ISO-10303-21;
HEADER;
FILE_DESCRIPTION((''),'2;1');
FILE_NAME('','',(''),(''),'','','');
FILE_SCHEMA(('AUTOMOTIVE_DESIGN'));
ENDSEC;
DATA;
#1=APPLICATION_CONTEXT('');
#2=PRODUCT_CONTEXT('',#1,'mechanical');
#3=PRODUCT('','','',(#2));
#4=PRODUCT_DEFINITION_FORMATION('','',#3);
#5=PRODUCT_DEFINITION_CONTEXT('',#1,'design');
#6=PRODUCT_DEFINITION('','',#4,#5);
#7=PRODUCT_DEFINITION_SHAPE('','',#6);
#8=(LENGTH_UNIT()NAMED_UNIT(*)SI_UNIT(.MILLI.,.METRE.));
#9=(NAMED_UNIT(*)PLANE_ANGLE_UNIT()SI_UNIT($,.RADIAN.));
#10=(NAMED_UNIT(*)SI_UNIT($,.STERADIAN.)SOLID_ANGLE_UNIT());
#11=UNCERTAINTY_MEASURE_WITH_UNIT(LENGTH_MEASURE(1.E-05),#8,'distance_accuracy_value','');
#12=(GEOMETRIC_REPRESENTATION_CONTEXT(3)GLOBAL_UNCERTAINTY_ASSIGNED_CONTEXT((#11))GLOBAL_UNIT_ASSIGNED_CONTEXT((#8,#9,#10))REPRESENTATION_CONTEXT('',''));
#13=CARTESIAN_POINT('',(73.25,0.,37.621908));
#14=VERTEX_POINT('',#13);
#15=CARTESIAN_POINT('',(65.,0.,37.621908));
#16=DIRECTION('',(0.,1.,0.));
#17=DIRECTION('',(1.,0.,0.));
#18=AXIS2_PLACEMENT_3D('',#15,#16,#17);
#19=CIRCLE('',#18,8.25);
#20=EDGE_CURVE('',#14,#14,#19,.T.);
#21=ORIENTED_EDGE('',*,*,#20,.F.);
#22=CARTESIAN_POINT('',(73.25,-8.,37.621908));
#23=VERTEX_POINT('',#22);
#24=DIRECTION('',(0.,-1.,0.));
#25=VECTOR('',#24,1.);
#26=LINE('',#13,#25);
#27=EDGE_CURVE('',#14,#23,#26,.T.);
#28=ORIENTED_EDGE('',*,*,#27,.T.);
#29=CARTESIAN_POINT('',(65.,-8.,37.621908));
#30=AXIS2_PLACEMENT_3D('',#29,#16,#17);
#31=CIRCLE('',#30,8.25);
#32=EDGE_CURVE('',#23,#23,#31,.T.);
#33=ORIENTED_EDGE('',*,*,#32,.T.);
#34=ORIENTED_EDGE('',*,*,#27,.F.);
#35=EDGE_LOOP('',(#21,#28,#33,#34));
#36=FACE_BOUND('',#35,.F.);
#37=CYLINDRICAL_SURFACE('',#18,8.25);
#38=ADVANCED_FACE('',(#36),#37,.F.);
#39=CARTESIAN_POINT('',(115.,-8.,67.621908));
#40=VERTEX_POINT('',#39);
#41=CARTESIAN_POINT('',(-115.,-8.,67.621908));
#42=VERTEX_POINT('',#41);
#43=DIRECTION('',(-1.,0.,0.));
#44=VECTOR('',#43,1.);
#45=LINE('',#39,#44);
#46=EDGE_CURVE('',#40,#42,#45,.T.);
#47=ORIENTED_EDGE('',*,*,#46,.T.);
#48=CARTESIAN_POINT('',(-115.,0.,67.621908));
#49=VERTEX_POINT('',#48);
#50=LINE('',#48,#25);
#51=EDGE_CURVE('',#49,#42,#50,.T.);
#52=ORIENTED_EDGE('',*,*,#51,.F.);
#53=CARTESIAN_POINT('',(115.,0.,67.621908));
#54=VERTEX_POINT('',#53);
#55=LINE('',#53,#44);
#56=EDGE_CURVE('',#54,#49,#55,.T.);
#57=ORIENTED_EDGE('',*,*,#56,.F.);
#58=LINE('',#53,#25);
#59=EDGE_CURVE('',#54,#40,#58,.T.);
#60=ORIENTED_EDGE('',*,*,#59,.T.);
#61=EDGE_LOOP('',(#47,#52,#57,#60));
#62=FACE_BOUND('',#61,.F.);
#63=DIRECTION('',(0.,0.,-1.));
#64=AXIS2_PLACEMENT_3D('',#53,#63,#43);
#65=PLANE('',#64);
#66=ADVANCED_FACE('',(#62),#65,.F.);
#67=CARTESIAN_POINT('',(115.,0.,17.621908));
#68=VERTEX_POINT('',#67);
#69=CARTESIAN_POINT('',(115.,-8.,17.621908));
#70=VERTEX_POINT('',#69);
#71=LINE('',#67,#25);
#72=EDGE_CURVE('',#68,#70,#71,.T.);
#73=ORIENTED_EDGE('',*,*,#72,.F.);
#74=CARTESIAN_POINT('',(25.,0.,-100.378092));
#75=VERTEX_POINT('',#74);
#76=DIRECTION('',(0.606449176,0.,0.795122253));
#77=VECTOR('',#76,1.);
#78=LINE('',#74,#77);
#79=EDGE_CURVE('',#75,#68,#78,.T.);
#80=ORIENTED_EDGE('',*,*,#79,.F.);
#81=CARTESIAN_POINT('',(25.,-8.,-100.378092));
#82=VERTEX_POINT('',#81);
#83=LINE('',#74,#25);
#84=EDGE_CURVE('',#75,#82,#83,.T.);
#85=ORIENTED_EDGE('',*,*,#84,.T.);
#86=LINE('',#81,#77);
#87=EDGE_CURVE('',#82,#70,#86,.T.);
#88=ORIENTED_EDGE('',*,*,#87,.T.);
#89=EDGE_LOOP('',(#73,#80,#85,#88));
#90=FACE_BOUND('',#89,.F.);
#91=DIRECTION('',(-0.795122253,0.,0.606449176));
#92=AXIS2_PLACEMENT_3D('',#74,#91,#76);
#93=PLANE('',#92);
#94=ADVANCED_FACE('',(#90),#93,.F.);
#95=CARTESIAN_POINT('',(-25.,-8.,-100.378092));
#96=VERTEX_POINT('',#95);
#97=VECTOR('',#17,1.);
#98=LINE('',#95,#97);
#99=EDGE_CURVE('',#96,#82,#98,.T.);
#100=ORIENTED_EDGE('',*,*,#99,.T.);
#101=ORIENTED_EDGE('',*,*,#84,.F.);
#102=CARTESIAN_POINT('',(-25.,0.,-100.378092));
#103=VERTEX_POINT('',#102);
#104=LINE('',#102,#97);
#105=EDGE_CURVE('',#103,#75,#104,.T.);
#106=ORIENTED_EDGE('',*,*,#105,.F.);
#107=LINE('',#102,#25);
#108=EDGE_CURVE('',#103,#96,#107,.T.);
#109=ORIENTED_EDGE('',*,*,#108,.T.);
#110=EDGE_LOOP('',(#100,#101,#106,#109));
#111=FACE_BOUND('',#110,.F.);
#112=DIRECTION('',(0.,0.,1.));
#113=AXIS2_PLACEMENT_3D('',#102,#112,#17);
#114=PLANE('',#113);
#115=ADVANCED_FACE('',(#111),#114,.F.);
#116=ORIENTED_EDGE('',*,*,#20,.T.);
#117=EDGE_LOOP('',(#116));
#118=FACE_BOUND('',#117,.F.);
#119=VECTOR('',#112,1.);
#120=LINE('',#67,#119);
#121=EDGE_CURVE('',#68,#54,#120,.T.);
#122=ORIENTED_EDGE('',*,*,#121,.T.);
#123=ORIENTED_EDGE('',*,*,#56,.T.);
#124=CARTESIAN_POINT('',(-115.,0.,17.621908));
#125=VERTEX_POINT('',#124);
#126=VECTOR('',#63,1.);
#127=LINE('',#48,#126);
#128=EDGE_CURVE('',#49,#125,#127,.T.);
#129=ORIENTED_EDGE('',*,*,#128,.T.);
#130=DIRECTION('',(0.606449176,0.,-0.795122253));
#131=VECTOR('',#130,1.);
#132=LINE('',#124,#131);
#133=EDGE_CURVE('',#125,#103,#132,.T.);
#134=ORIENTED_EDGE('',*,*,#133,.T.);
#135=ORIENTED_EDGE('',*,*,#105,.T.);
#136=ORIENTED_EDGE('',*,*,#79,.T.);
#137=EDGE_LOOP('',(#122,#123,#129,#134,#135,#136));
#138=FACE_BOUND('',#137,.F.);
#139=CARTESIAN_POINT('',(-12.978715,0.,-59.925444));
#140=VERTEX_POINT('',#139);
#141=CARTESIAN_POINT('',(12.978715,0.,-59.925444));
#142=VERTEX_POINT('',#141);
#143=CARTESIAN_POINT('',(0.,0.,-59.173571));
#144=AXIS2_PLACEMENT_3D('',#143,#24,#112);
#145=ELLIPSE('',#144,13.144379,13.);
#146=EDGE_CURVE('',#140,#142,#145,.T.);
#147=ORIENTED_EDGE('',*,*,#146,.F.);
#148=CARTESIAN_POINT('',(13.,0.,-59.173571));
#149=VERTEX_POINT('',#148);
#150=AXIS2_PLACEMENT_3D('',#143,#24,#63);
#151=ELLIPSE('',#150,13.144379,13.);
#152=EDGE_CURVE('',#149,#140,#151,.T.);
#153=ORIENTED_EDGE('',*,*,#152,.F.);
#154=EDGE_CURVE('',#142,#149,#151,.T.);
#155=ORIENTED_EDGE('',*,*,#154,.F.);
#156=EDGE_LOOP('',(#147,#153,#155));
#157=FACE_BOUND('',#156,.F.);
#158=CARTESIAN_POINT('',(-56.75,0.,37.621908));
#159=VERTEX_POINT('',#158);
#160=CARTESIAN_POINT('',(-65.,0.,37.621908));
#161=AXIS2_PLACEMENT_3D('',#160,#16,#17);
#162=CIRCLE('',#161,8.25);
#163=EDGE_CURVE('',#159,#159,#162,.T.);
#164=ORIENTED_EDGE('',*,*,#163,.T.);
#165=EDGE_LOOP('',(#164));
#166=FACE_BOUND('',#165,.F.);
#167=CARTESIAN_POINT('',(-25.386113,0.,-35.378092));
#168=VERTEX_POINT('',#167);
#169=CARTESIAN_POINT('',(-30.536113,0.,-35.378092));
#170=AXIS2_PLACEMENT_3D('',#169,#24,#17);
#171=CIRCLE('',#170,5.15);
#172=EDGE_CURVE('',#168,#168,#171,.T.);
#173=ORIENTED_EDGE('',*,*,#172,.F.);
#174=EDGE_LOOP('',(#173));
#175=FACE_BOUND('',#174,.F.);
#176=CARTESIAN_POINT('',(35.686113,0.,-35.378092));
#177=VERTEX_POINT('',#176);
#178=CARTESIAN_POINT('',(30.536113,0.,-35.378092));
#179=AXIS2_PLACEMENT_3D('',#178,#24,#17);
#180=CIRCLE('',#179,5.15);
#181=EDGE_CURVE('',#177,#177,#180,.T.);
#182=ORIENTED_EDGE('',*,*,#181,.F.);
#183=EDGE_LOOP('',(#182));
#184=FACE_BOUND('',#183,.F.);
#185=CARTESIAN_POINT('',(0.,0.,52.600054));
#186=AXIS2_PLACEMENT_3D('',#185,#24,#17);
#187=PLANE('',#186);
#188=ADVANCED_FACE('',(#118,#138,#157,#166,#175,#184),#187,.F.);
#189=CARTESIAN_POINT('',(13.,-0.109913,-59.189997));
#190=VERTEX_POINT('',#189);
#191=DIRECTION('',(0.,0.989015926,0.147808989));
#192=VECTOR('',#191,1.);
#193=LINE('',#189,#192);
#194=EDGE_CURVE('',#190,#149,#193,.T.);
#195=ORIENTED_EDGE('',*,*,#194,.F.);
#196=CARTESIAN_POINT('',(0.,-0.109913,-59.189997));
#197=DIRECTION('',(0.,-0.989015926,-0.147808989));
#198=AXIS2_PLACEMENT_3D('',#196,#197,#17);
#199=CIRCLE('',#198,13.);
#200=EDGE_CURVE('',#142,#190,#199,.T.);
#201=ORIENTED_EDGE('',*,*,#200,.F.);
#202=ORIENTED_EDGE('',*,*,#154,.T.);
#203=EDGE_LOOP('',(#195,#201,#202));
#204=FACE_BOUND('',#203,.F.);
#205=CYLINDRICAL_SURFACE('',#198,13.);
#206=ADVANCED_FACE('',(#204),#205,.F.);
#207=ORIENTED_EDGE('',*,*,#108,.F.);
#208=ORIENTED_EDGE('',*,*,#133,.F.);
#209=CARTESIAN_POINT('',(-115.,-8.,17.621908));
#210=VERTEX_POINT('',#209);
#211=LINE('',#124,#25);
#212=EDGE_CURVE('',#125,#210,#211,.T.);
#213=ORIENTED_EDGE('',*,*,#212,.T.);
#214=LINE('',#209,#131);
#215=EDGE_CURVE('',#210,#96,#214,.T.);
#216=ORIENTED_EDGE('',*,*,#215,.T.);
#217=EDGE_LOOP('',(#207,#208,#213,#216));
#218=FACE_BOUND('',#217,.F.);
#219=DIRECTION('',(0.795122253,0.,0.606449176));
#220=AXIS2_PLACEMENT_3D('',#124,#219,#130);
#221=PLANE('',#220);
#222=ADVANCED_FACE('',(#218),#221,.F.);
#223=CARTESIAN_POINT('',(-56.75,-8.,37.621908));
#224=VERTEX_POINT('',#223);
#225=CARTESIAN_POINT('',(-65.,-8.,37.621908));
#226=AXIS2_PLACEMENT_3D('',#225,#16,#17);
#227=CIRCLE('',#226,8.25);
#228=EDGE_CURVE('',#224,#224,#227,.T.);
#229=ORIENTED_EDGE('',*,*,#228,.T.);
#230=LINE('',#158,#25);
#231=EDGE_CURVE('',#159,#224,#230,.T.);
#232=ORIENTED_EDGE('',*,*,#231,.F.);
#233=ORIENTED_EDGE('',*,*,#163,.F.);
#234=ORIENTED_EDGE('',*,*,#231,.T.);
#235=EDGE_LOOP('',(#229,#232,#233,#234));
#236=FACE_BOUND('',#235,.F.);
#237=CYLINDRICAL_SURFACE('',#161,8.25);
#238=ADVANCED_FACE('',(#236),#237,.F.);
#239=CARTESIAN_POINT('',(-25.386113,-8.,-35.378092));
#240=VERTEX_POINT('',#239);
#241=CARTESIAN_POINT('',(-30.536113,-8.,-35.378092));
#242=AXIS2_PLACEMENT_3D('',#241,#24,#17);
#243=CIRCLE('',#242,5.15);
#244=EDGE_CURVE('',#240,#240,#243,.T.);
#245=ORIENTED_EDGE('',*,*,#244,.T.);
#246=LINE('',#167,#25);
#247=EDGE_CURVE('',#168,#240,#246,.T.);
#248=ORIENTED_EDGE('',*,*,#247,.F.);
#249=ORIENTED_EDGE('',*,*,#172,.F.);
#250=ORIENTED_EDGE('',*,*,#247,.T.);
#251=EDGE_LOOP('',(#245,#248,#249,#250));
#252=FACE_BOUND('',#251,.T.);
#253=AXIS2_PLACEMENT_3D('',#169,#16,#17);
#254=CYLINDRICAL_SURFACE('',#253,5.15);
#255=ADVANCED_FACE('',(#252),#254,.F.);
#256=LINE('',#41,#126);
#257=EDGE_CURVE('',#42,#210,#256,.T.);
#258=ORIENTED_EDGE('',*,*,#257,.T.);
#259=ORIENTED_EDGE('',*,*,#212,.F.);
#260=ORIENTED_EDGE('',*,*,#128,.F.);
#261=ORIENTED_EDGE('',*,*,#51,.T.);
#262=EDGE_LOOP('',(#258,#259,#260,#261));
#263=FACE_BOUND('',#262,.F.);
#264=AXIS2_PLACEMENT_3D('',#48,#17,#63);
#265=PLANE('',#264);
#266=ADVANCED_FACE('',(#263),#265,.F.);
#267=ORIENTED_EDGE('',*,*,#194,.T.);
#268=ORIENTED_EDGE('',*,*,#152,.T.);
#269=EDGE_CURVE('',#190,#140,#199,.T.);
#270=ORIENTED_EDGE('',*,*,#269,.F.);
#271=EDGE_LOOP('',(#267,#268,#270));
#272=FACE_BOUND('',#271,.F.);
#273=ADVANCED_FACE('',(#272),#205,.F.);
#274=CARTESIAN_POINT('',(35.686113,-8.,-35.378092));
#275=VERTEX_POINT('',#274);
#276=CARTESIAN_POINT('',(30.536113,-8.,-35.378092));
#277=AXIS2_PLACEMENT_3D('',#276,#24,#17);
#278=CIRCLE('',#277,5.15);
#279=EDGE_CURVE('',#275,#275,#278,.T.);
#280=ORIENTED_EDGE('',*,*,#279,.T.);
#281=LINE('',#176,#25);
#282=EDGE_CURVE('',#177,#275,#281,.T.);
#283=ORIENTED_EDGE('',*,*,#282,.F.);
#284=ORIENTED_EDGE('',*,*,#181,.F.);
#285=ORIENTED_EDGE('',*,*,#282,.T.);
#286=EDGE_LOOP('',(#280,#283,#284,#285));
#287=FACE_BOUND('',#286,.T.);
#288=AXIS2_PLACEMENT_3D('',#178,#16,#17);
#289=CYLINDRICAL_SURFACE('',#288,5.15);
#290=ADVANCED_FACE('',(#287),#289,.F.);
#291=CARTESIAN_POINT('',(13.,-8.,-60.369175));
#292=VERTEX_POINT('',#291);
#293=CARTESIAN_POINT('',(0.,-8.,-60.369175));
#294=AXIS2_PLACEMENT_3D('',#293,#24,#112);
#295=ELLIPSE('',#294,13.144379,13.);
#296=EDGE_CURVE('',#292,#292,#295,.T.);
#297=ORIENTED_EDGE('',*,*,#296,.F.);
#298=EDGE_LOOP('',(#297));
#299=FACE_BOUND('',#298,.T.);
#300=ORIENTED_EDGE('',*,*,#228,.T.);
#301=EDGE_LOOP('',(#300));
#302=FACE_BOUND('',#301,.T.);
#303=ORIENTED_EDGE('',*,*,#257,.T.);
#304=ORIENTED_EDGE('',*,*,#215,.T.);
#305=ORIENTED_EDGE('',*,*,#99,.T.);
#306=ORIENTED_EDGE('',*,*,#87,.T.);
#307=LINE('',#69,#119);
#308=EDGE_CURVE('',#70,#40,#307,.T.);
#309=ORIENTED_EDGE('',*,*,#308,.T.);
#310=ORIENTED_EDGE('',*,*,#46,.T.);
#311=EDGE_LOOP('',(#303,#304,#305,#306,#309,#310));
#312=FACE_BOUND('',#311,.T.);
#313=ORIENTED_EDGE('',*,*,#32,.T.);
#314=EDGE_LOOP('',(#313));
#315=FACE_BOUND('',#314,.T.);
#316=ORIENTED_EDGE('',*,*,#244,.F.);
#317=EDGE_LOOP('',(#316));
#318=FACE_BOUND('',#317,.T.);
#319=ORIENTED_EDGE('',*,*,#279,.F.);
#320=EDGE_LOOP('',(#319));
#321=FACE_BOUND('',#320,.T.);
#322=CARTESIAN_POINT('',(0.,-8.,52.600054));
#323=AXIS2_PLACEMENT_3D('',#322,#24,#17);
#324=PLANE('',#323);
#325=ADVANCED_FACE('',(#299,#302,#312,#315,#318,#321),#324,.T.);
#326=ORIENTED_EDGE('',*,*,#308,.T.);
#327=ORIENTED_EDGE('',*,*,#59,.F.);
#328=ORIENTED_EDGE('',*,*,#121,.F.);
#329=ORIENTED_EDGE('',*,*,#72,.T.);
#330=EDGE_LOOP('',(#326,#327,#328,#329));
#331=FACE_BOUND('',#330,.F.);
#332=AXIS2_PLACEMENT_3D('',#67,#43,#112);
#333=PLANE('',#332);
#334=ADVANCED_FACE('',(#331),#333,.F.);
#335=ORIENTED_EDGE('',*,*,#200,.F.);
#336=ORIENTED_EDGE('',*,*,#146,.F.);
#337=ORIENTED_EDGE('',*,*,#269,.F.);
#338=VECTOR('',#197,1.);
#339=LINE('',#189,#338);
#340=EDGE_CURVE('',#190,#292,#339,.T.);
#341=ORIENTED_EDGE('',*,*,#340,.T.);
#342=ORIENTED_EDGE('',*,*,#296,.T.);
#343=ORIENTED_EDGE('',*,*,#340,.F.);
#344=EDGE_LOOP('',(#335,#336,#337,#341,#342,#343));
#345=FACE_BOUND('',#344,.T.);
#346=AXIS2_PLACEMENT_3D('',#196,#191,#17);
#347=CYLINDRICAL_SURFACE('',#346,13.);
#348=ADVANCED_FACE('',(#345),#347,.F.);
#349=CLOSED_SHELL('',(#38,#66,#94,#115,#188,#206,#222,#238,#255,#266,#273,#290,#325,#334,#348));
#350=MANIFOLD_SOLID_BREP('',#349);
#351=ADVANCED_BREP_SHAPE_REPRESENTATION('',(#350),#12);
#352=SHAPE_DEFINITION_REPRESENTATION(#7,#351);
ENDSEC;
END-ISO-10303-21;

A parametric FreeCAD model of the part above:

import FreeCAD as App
import Part
import Sketcher

V = App.Vector
Q = App.Units.Quantity


def add_polygon(sketch, points):
    """Adds a closed chain of lines whose ends are joined by coincident constraints."""
    first, n = sketch.GeometryCount, len(points)
    for a, b in zip(points, points[1:] + points[:1]):
        sketch.addGeometry(Part.LineSegment(App.Vector(*a, 0), App.Vector(*b, 0)), False)
    for i in range(n):
        sketch.addConstraint(Sketcher.Constraint("Coincident", first + i, 2, first + (i + 1) % n, 1))

doc = App.newDocument("Part")
body = doc.addObject("PartDesign::Body", "Body")

# Sketch on XZ plane
sketch1 = body.newObject("Sketcher::SketchObject", "Sketch")
sketch1.AttachmentSupport = (doc.getObject("XZ_Plane"), [""])
sketch1.MapMode = "FlatFace"
add_polygon(sketch1, [(115, 68), (-115, 68), (-115, 18), (-25, -100), (25, -100), (115, 18)])  # lines 0-5
sketch1.addGeometry(Part.Circle(V(-31, -35, 0), V(0, 0, 1), 5), False)  # 6
sketch1.addGeometry(Part.Circle(V(31, -35, 0), V(0, 0, 1), 5), False)  # 7
sketch1.addGeometry(Part.Circle(V(-65, 38, 0), V(0, 0, 1), 8), False)  # 8
sketch1.addGeometry(Part.Circle(V(65, 38, 0), V(0, 0, 1), 8), False)  # 9
sketch1.addConstraint(Sketcher.Constraint("Horizontal", 0))
sketch1.addConstraint(Sketcher.Constraint("Vertical", 1))
sketch1.addConstraint(Sketcher.Constraint("Horizontal", 3))
sketch1.addConstraint(Sketcher.Constraint("Vertical", 5))
sketch1.addConstraint(Sketcher.Constraint("Equal", 6, 7))
sketch1.addConstraint(Sketcher.Constraint("Equal", 8, 9))
sketch1.addConstraint(Sketcher.Constraint("Symmetric", 6, 3, 7, 3, -2))
sketch1.addConstraint(Sketcher.Constraint("Symmetric", 8, 3, 9, 3, -2))
sketch1.addConstraint(Sketcher.Constraint("Symmetric", 1, 2, 4, 2, -2))
sketch1.addConstraint(Sketcher.Constraint("Equal", 3, 1))
sketch1.addConstraint(Sketcher.Constraint("Equal", 2, 4))
sketch1.addConstraint(Sketcher.Constraint("Diameter", 6, Q("10.3 mm")))
sketch1.addConstraint(Sketcher.Constraint("Diameter", 8, Q("16.5 mm")))
sketch1.addConstraint(Sketcher.Constraint("DistanceX", 0, 2, 0, 1, Q("230 mm")))
sketch1.addConstraint(Sketcher.Constraint("DistanceX", 3, 1, 3, 2, Q("50 mm")))
sketch1.addConstraint(Sketcher.Constraint("DistanceX", 8, 3, -1, 1, Q("65 mm")))
sketch1.addConstraint(Sketcher.Constraint("DistanceY", 6, 3, 8, 3, Q("73 mm")))
sketch1.addConstraint(Sketcher.Constraint("DistanceY", 8, 3, 0, 2, Q("30 mm")))
sketch1.addConstraint(Sketcher.Constraint("DistanceY", 2, 2, 6, 3, Q("65 mm")))
sketch1.addConstraint(Sketcher.Constraint("DistanceY", -1, 1, 0, 2, Q("67.621908 mm")))
sketch1.addConstraint(Sketcher.Constraint("DistanceX", 6, 3, -1, 1, Q("30.536113 mm")))
pad1 = body.newObject("PartDesign::Pad", "Pad")
pad1.Profile = sketch1
pad1.Length = 8

# Sketch on an angled plane
sketch2 = body.newObject("Sketcher::SketchObject", "Sketch001")
sketch2.Placement = App.Placement(V(0, -8.760227, -1.309225), App.Rotation(V(1, 0, 0), V(0, -0.147808989, 0.989015926), V(0, -0.989015926, -0.147808989), "ZXY"))
sketch2.addGeometry(Part.Circle(V(0, -59, 0), V(0, 0, 1), 13), False)
sketch2.addConstraint(Sketcher.Constraint("PointOnObject", 0, 3, -2))
sketch2.addConstraint(Sketcher.Constraint("Diameter", 0, Q("26 mm")))
sketch2.addConstraint(Sketcher.Constraint("DistanceY", 0, 3, -1, 1, Q("58.5236 mm")))
pocket1 = body.newObject("PartDesign::Pocket", "Pocket")
pocket1.Profile = sketch2
pocket1.Length = 230
pocket1.Reversed = True

# Sketch on an angled plane
sketch3 = body.newObject("Sketcher::SketchObject", "Sketch002")
sketch3.Placement = App.Placement(V(0, -8.760227, -1.309225), App.Rotation(V(1, 0, 0), V(0, -0.147808989, 0.989015926), V(0, -0.989015926, -0.147808989), "ZXY"))
sketch3.addGeometry(Part.Circle(V(0, -59, 0), V(0, 0, 1), 13), False)
sketch3.addConstraint(Sketcher.Constraint("PointOnObject", 0, 3, -2))
sketch3.addConstraint(Sketcher.Constraint("Diameter", 0, Q("26 mm")))
sketch3.addConstraint(Sketcher.Constraint("DistanceY", 0, 3, -1, 1, Q("58.5236 mm")))
pocket2 = body.newObject("PartDesign::Pocket", "Pocket001")
pocket2.Profile = sketch3
pocket2.Length = 25

doc.recompute()
